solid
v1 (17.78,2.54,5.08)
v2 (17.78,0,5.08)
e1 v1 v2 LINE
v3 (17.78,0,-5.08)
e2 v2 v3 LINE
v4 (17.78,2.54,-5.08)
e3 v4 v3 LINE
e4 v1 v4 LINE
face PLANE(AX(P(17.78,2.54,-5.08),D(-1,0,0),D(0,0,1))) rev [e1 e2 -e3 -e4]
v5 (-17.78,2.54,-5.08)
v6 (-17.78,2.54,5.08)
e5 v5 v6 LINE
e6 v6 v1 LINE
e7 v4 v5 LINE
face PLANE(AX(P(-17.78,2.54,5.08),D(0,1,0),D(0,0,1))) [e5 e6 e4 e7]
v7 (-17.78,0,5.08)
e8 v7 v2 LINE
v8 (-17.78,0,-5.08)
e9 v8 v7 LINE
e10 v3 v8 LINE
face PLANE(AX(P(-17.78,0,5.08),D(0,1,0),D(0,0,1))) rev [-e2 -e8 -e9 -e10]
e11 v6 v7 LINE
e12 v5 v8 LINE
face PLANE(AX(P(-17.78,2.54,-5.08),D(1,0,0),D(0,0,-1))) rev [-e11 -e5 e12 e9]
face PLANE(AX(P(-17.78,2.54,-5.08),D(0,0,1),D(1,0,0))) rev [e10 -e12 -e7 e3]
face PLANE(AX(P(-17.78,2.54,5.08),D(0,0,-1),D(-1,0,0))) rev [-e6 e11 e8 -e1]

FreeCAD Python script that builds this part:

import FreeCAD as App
import Part
import Sketcher
from FreeCAD import Vector
Q = App.Units.Quantity

doc = App.newDocument("Part")
body = doc.addObject("PartDesign::Body", "Body")

sketch1 = doc.addObject("Sketcher::SketchObject", "Sketch")
body.addObject(sketch1)
sketch1.AttachmentSupport = (doc.XZ_Plane, [""])
sketch1.MapMode = "FlatFace"
sketch1.addGeometry(Part.LineSegment(Vector(-18, -5, 0), Vector(-18, 5, 0)), False)
sketch1.addGeometry(Part.LineSegment(Vector(-18, 5, 0), Vector(18, 5, 0)), False)
sketch1.addGeometry(Part.LineSegment(Vector(18, 5, 0), Vector(18, -5, 0)), False)
sketch1.addGeometry(Part.LineSegment(Vector(18, -5, 0), Vector(-18, -5, 0)), False)
sketch1.addConstraint(Sketcher.Constraint("Coincident", 0, 2, 1, 1))
sketch1.addConstraint(Sketcher.Constraint("Coincident", 1, 2, 2, 1))
sketch1.addConstraint(Sketcher.Constraint("Coincident", 2, 2, 3, 1))
sketch1.addConstraint(Sketcher.Constraint("Coincident", 3, 2, 0, 1))
sketch1.addConstraint(Sketcher.Constraint("Vertical", 0))
sketch1.addConstraint(Sketcher.Constraint("Horizontal", 1))
sketch1.addConstraint(Sketcher.Constraint("Vertical", 2))
sketch1.addConstraint(Sketcher.Constraint("Horizontal", 3))
sketch1.addConstraint(Sketcher.Constraint("Symmetric", 0, 2, 2, 2, -1, 1))
sketch1.addConstraint(Sketcher.Constraint("DistanceX", 1, 1, 1, 2, Q("1.4 in")))
sketch1.addConstraint(Sketcher.Constraint("DistanceY", 0, 1, 0, 2, Q("0.4 in")))
pad1 = doc.addObject("PartDesign::Pad", "Pad")
body.addObject(pad1)
pad1.Profile = sketch1
pad1.Length = Q("0.1 in")
pad1.Reversed = True

doc.recompute()
